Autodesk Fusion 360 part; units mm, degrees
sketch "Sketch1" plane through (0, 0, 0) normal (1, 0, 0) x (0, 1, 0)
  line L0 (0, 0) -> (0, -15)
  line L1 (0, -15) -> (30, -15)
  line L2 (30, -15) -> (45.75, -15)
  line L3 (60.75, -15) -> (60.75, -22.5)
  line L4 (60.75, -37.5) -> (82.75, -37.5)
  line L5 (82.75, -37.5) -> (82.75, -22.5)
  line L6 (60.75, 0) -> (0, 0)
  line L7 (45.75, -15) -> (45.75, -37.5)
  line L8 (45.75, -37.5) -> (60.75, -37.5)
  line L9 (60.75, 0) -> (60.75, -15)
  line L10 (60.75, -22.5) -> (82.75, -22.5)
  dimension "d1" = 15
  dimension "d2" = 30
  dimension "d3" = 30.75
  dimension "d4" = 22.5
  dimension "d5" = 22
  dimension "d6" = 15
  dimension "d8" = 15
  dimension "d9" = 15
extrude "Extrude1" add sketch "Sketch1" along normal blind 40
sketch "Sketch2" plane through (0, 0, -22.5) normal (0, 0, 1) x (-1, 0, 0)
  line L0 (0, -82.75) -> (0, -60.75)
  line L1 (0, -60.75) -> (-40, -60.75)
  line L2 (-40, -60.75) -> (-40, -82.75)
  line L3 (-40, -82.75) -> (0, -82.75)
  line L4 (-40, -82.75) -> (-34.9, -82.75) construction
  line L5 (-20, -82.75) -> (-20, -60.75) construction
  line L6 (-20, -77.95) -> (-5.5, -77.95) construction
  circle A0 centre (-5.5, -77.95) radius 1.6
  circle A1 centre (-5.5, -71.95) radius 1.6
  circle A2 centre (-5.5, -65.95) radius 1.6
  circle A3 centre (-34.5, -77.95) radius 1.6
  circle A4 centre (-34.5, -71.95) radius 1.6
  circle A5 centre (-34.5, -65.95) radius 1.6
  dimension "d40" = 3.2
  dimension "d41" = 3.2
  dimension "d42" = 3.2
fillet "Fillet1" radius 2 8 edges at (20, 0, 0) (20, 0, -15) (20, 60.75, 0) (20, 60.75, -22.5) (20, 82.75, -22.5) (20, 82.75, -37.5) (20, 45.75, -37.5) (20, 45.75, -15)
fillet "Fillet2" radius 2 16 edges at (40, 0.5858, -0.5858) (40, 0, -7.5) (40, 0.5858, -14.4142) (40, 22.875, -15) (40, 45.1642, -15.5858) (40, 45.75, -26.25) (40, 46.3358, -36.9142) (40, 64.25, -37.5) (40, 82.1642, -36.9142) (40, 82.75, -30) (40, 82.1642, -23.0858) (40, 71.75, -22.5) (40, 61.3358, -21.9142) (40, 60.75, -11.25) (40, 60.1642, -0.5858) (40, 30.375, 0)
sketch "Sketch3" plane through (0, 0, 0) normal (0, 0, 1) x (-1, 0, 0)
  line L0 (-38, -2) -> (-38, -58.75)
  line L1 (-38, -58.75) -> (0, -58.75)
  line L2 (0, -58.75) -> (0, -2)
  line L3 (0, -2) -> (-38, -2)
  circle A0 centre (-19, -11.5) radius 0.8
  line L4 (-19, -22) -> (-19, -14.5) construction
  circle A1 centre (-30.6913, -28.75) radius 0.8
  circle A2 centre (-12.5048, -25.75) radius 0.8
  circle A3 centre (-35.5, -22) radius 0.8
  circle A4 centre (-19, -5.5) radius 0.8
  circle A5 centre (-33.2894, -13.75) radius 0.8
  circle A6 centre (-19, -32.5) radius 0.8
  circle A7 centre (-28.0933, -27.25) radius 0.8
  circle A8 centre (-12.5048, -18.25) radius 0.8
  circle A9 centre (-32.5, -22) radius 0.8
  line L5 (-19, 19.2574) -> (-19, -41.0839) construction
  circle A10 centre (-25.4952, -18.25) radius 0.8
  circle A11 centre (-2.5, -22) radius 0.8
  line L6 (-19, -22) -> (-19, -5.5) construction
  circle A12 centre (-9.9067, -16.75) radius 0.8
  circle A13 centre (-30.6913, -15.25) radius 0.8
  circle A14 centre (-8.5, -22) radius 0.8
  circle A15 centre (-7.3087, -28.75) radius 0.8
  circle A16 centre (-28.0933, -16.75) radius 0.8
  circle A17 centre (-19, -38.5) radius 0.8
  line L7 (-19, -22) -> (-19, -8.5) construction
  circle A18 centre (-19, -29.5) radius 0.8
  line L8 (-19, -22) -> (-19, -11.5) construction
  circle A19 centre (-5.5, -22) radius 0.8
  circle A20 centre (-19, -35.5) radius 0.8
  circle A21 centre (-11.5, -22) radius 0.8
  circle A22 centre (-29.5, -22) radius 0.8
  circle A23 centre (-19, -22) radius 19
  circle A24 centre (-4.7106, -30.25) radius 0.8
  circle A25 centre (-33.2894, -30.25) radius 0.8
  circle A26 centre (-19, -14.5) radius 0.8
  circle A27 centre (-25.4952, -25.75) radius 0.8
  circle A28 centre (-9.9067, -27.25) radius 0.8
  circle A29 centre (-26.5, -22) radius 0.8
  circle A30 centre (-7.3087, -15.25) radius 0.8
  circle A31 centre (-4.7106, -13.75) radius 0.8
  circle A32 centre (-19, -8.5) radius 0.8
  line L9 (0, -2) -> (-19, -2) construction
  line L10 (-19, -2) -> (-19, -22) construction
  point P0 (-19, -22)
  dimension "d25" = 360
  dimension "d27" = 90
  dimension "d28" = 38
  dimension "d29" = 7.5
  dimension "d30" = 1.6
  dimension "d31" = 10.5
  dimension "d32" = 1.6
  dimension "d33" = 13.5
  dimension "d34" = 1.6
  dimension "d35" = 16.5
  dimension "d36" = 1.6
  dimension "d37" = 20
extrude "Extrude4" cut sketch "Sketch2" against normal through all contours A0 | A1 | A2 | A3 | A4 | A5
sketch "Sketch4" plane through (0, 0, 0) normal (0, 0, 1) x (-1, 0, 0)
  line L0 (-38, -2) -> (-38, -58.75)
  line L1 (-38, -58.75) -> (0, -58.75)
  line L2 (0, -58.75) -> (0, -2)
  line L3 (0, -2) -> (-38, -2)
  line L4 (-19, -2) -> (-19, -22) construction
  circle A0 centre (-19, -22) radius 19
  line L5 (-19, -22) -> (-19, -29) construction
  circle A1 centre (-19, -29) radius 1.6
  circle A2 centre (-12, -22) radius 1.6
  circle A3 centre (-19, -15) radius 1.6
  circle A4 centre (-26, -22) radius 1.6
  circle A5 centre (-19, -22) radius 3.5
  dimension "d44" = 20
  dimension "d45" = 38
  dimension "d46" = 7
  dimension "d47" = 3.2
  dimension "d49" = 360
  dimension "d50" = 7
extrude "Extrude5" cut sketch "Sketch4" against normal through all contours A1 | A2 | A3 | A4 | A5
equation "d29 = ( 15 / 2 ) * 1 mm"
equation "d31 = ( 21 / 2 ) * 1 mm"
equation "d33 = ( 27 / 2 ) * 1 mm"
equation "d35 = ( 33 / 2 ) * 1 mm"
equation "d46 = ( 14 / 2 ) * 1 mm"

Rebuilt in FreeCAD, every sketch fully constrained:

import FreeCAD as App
import Part
import Sketcher


def edges_at(feature, points):
    """Names of the edges that pass closest to the given points."""
    edges = feature.Shape.Edges
    near = lambda p: min(range(len(edges)), key=lambda i: edges[i].distToShape(Part.Vertex(*p))[0])
    return sorted({f"Edge{near(p) + 1}" for p in points})


def add_polygon(sketch, points):
    """Adds a closed chain of lines whose ends are joined by coincident constraints."""
    first, n = sketch.GeometryCount, len(points)
    for a, b in zip(points, points[1:] + points[:1]):
        sketch.addGeometry(Part.LineSegment(App.Vector(*a, 0), App.Vector(*b, 0)), False)
    for i in range(n):
        sketch.addConstraint(Sketcher.Constraint("Coincident", first + i, 2, first + (i + 1) % n, 1))

doc = App.newDocument("Part")
body = doc.addObject("PartDesign::Body", "Body")

# Sketch on YZ plane
sketch1 = body.newObject("Sketcher::SketchObject", "Sketch")
sketch1.AttachmentSupport = (doc.getObject("YZ_Plane"), [""])
sketch1.MapMode = "FlatFace"
add_polygon(sketch1, [(60.75, 0), (0, 0), (0, -15), (45.75, -15), (45.75, -37.5), (82.75, -37.5), (82.75, -22.5), (60.75, -22.5)])  # lines 0-7
sketch1.addConstraint([
    Sketcher.Constraint("Horizontal", 0),
    Sketcher.Constraint("Vertical", 1),
    Sketcher.Constraint("Horizontal", 2),
    Sketcher.Constraint("Vertical", 3),
    Sketcher.Constraint("Horizontal", 4),
    Sketcher.Constraint("Vertical", 5),
    Sketcher.Constraint("Horizontal", 6),
    Sketcher.Constraint("Vertical", 7),
    Sketcher.Constraint("Coincident", 0, 2, -1, 1),
    Sketcher.Constraint("Equal", 1, 5),
    Sketcher.Constraint("DistanceX", 6, 2, 6, 1, 22.0),
    Sketcher.Constraint("DistanceY", 1, 2, 1, 1, 15.0),
    Sketcher.Constraint("DistanceY", 3, 2, 3, 1, 22.5),
    Sketcher.Constraint("DistanceX", 2, 2, 6, 2, 15.0),
    Sketcher.Constraint("DistanceX", 0, 2, 0, 1, 60.75),
])
pad1 = body.newObject("PartDesign::Pad", "Pad")
pad1.Profile = sketch1
pad1.Length = 40
doc.recompute()

fillet = body.newObject("PartDesign::Fillet", "Fillet")
fillet.Base = (pad1, edges_at(pad1, [
    (20, 0, 0),
    (20, 0, -15),
    (20, 60.75, 0),
    (20, 60.75, -22.5),
    (20, 82.75, -22.5),
    (20, 82.75, -37.5),
    (20, 45.75, -37.5),
    (20, 45.75, -15),
]))
fillet.Radius = 2
doc.recompute()

fillet2 = body.newObject("PartDesign::Fillet", "Fillet001")
fillet2.Base = (fillet, edges_at(fillet, [
    (40, 0.586, -0.586),
    (40, 0, -7.5),
    (40, 0.586, -14.414),
    (40, 22.875, -15),
    (40, 45.164, -15.586),
    (40, 45.75, -26.25),
    (40, 46.336, -36.914),
    (40, 64.25, -37.5),
    (40, 82.164, -36.914),
    (40, 82.75, -30),
    (40, 82.164, -23.086),
    (40, 71.75, -22.5),
    (40, 61.336, -21.914),
    (40, 60.75, -11.25),
    (40, 60.164, -0.586),
    (40, 30.375, 0),
]))
fillet2.Radius = 2

# Sketch on XY plane
sketch2 = body.newObject("Sketcher::SketchObject", "Sketch001")
sketch2.AttachmentSupport = (doc.getObject("XY_Plane"), [""])
sketch2.MapMode = "FlatFace"
sketch2.AttachmentOffset = App.Placement(App.Vector(0, 0, -22.5), App.Rotation())
sketch2.addGeometry([
    Part.Circle(App.Vector(5.5, 77.95, 0), App.Vector(0, 0, 1), 1.6),  # 0
    Part.Circle(App.Vector(5.5, 71.95, 0), App.Vector(0, 0, 1), 1.6),  # 1
    Part.Circle(App.Vector(5.5, 65.95, 0), App.Vector(0, 0, 1), 1.6),  # 2
    Part.Circle(App.Vector(34.5, 77.95, 0), App.Vector(0, 0, 1), 1.6),  # 3
    Part.Circle(App.Vector(34.5, 71.95, 0), App.Vector(0, 0, 1), 1.6),  # 4
    Part.Circle(App.Vector(34.5, 65.95, 0), App.Vector(0, 0, 1), 1.6),  # 5
], False)
sketch2.addConstraint([
    Sketcher.Constraint("Equal", 0, 1),
    Sketcher.Constraint("Equal", 1, 2),
    Sketcher.Constraint("Equal", 2, 3),
    Sketcher.Constraint("Equal", 3, 4),
    Sketcher.Constraint("Equal", 4, 5),
    Sketcher.Constraint("Horizontal", 0, 3, 3, 3),
    Sketcher.Constraint("Horizontal", 1, 3, 4, 3),
    Sketcher.Constraint("Horizontal", 2, 3, 5, 3),
    Sketcher.Constraint("Vertical", 0, 3, 1, 3),
    Sketcher.Constraint("Vertical", 1, 3, 2, 3),
    Sketcher.Constraint("Vertical", 3, 3, 4, 3),
    Sketcher.Constraint("Vertical", 4, 3, 5, 3),
    Sketcher.Constraint("Diameter", 0, 3.2),
    Sketcher.Constraint("DistanceY", 1, 3, 0, 3, 6.0),
    Sketcher.Constraint("DistanceY", 2, 3, 1, 3, 6.0),
    Sketcher.Constraint("DistanceX", 0, 3, 3, 3, 29.0),
    Sketcher.Constraint("DistanceX", -1, 1, 0, 3, 5.5),
    Sketcher.Constraint("DistanceY", -1, 1, 0, 3, 77.95),
])
pocket1 = body.newObject("PartDesign::Pocket", "Pocket")
pocket1.Profile = sketch2
pocket1.Type = "ThroughAll"

# Sketch on XY plane
sketch3 = body.newObject("Sketcher::SketchObject", "Sketch002")
sketch3.AttachmentSupport = (doc.getObject("XY_Plane"), [""])
sketch3.MapMode = "FlatFace"
sketch3.addGeometry([
    Part.Circle(App.Vector(19, 29, 0), App.Vector(0, 0, 1), 1.6),  # 0
    Part.Circle(App.Vector(12, 22, 0), App.Vector(0, 0, 1), 1.6),  # 1
    Part.Circle(App.Vector(19, 15, 0), App.Vector(0, 0, 1), 1.6),  # 2
    Part.Circle(App.Vector(26, 22, 0), App.Vector(0, 0, 1), 1.6),  # 3
    Part.Circle(App.Vector(19, 22, 0), App.Vector(0, 0, 1), 3.5),  # 4
], False)
sketch3.addConstraint([
    Sketcher.Constraint("Equal", 0, 1),
    Sketcher.Constraint("Equal", 1, 2),
    Sketcher.Constraint("Equal", 2, 3),
    Sketcher.Constraint("Horizontal", 1, 3, 3, 3),
    Sketcher.Constraint("Horizontal", 3, 3, 4, 3),
    Sketcher.Constraint("Vertical", 0, 3, 2, 3),
    Sketcher.Constraint("Vertical", 2, 3, 4, 3),
    Sketcher.Constraint("Diameter", 4, 7.0),
    Sketcher.Constraint("Diameter", 0, 3.2),
    Sketcher.Constraint("DistanceX", 1, 3, 0, 3, 7.0),
    Sketcher.Constraint("DistanceY", 1, 3, 0, 3, 7.0),
    Sketcher.Constraint("DistanceY", 2, 3, 1, 3, 7.0),
    Sketcher.Constraint("DistanceX", 0, 3, 3, 3, 7.0),
    Sketcher.Constraint("DistanceX", -1, 1, 0, 3, 19.0),
    Sketcher.Constraint("DistanceY", -1, 1, 0, 3, 29.0),
])
pocket2 = body.newObject("PartDesign::Pocket", "Pocket001")
pocket2.Profile = sketch3
pocket2.Type = "ThroughAll"

doc.recompute()
